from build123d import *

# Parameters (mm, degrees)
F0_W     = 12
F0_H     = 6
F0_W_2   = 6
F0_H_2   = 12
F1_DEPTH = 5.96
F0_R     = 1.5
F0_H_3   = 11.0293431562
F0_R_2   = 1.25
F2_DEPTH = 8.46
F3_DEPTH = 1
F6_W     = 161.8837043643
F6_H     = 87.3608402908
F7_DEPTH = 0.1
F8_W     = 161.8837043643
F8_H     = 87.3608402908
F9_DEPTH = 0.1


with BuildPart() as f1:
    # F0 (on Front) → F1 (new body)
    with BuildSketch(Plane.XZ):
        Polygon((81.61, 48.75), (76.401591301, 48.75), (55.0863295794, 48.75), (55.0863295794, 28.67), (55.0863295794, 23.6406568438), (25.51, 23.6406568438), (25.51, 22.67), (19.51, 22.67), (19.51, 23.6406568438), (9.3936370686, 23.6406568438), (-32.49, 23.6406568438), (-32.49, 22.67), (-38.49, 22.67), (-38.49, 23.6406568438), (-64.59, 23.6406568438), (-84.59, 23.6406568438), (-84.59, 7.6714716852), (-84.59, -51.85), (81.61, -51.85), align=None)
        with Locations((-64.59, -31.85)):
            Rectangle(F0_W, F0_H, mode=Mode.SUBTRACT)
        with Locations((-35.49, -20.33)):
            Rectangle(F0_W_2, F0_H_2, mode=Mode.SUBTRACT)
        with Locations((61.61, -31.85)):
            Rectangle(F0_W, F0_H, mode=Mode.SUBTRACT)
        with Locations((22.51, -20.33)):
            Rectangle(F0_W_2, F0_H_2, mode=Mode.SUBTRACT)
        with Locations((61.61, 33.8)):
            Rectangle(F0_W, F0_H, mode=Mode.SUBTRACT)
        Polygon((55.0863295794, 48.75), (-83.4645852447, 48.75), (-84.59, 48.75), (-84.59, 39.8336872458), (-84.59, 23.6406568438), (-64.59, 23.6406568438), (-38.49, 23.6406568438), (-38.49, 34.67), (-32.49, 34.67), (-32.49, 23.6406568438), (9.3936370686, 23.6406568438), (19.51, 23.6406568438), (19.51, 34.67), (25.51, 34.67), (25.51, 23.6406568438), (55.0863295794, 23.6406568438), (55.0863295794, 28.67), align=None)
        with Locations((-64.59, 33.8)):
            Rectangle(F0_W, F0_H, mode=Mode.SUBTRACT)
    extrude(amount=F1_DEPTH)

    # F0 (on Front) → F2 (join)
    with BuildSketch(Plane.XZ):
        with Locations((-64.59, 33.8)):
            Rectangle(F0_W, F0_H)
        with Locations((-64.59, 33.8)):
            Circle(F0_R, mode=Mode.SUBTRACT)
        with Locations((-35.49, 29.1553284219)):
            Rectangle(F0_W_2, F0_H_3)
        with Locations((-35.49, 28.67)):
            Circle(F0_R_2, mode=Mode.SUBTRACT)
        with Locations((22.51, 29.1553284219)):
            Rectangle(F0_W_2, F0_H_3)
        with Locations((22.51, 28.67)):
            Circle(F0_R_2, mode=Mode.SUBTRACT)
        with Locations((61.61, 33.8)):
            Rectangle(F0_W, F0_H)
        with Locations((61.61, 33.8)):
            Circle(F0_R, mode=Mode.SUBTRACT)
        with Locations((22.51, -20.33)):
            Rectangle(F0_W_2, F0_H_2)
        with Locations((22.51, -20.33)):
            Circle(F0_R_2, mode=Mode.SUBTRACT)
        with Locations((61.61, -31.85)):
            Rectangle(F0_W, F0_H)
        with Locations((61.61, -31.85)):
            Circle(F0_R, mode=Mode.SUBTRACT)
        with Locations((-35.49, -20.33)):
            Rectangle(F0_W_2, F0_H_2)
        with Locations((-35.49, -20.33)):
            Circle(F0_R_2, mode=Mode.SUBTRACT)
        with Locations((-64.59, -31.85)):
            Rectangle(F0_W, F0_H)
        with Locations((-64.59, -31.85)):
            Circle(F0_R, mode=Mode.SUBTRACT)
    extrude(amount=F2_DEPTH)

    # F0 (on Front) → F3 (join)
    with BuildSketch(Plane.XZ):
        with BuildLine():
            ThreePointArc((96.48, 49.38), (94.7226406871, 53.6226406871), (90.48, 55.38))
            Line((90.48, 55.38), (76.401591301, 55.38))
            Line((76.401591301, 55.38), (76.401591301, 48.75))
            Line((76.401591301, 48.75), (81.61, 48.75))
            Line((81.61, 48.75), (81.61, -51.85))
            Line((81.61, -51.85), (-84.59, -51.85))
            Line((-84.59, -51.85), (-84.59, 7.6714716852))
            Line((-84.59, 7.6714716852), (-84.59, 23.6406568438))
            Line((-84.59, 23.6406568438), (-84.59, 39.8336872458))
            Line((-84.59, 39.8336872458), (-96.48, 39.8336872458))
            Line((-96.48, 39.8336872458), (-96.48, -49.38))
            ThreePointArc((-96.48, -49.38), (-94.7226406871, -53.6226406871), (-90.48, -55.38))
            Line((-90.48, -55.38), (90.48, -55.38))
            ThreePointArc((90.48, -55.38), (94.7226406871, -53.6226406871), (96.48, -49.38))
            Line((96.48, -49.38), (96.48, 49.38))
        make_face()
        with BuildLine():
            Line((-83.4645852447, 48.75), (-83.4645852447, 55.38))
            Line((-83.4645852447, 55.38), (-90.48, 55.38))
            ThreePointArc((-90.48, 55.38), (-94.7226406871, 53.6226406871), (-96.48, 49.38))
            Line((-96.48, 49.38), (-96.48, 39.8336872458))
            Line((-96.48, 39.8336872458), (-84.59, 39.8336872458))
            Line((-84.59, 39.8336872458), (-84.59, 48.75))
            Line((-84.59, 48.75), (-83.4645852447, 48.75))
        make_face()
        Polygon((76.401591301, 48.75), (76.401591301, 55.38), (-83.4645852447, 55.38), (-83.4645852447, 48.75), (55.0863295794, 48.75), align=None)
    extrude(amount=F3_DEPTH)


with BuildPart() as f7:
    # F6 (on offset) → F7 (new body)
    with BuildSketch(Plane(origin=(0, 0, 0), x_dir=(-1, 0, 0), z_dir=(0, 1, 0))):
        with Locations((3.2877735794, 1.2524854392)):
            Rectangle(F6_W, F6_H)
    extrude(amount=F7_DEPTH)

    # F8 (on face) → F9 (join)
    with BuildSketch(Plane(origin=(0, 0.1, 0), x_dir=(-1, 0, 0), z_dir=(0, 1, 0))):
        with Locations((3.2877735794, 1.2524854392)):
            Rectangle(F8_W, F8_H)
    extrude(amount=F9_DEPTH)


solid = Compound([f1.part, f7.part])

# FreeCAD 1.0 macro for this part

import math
import FreeCAD as App
import Part
import Sketcher

V = App.Vector

doc = App.newDocument("Part")
body = doc.addObject("PartDesign::Body", "Body")

sketch1 = body.newObject("Sketcher::SketchObject", "Sketch")
sketch1.AttachmentSupport = (doc.getObject("XZ_Plane"), [""])
sketch1.MapMode = "FlatFace"
sketch1.addGeometry(Part.LineSegment(V(82, 49, 0), V(-85, 49, 0)), False)
sketch1.addGeometry(Part.LineSegment(V(-85, 49, 0), V(-85, -52, 0)), False)
sketch1.addGeometry(Part.LineSegment(V(-85, -52, 0), V(82, -52, 0)), False)
sketch1.addGeometry(Part.LineSegment(V(82, -52, 0), V(82, 49, 0)), False)
sketch1.addGeometry(Part.LineSegment(V(-59, -35, 0), V(-71, -35, 0)), False)
sketch1.addGeometry(Part.LineSegment(V(-71, -35, 0), V(-71, -29, 0)), False)
sketch1.addGeometry(Part.LineSegment(V(-71, -29, 0), V(-59, -29, 0)), False)
sketch1.addGeometry(Part.LineSegment(V(-59, -29, 0), V(-59, -35, 0)), False)
sketch1.addGeometry(Part.LineSegment(V(-32, -26, 0), V(-38, -26, 0)), False)
sketch1.addGeometry(Part.LineSegment(V(-38, -26, 0), V(-38, -14, 0)), False)
sketch1.addGeometry(Part.LineSegment(V(-38, -14, 0), V(-32, -14, 0)), False)
sketch1.addGeometry(Part.LineSegment(V(-32, -14, 0), V(-32, -26, 0)), False)
sketch1.addGeometry(Part.LineSegment(V(26, -26, 0), V(20, -26, 0)), False)
sketch1.addGeometry(Part.LineSegment(V(20, -26, 0), V(20, -14, 0)), False)
sketch1.addGeometry(Part.LineSegment(V(20, -14, 0), V(26, -14, 0)), False)
sketch1.addGeometry(Part.LineSegment(V(26, -14, 0), V(26, -26, 0)), False)
sketch1.addGeometry(Part.LineSegment(V(68, -35, 0), V(56, -35, 0)), False)
sketch1.addGeometry(Part.LineSegment(V(56, -35, 0), V(56, -29, 0)), False)
sketch1.addGeometry(Part.LineSegment(V(56, -29, 0), V(68, -29, 0)), False)
sketch1.addGeometry(Part.LineSegment(V(68, -29, 0), V(68, -35, 0)), False)
sketch1.addGeometry(Part.LineSegment(V(-59, 31, 0), V(-71, 31, 0)), False)
sketch1.addGeometry(Part.LineSegment(V(-71, 31, 0), V(-71, 37, 0)), False)
sketch1.addGeometry(Part.LineSegment(V(-71, 37, 0), V(-59, 37, 0)), False)
sketch1.addGeometry(Part.LineSegment(V(-59, 37, 0), V(-59, 31, 0)), False)
sketch1.addGeometry(Part.LineSegment(V(-38, 23, 0), V(-38, 35, 0)), False)
sketch1.addGeometry(Part.LineSegment(V(-38, 35, 0), V(-32, 35, 0)), False)
sketch1.addGeometry(Part.LineSegment(V(-32, 35, 0), V(-32, 23, 0)), False)
sketch1.addGeometry(Part.LineSegment(V(-32, 23, 0), V(-38, 23, 0)), False)
sketch1.addGeometry(Part.LineSegment(V(26, 23, 0), V(20, 23, 0)), False)
sketch1.addGeometry(Part.LineSegment(V(20, 23, 0), V(20, 35, 0)), False)
sketch1.addGeometry(Part.LineSegment(V(20, 35, 0), V(26, 35, 0)), False)
sketch1.addGeometry(Part.LineSegment(V(26, 35, 0), V(26, 23, 0)), False)
sketch1.addGeometry(Part.LineSegment(V(68, 31, 0), V(56, 31, 0)), False)
sketch1.addGeometry(Part.LineSegment(V(56, 31, 0), V(56, 37, 0)), False)
sketch1.addGeometry(Part.LineSegment(V(56, 37, 0), V(68, 37, 0)), False)
sketch1.addGeometry(Part.LineSegment(V(68, 37, 0), V(68, 31, 0)), False)
sketch1.addConstraint(Sketcher.Constraint("Coincident", 0, 2, 1, 1))
sketch1.addConstraint(Sketcher.Constraint("Coincident", 1, 2, 2, 1))
sketch1.addConstraint(Sketcher.Constraint("Coincident", 2, 2, 3, 1))
sketch1.addConstraint(Sketcher.Constraint("Coincident", 3, 2, 0, 1))
sketch1.addConstraint(Sketcher.Constraint("Coincident", 4, 2, 5, 1))
sketch1.addConstraint(Sketcher.Constraint("Coincident", 5, 2, 6, 1))
sketch1.addConstraint(Sketcher.Constraint("Coincident", 6, 2, 7, 1))
sketch1.addConstraint(Sketcher.Constraint("Coincident", 7, 2, 4, 1))
sketch1.addConstraint(Sketcher.Constraint("Coincident", 8, 2, 9, 1))
sketch1.addConstraint(Sketcher.Constraint("Coincident", 9, 2, 10, 1))
sketch1.addConstraint(Sketcher.Constraint("Coincident", 10, 2, 11, 1))
sketch1.addConstraint(Sketcher.Constraint("Coincident", 11, 2, 8, 1))
sketch1.addConstraint(Sketcher.Constraint("Coincident", 12, 2, 13, 1))
sketch1.addConstraint(Sketcher.Constraint("Coincident", 13, 2, 14, 1))
sketch1.addConstraint(Sketcher.Constraint("Coincident", 14, 2, 15, 1))
sketch1.addConstraint(Sketcher.Constraint("Coincident", 15, 2, 12, 1))
sketch1.addConstraint(Sketcher.Constraint("Coincident", 16, 2, 17, 1))
sketch1.addConstraint(Sketcher.Constraint("Coincident", 17, 2, 18, 1))
sketch1.addConstraint(Sketcher.Constraint("Coincident", 18, 2, 19, 1))
sketch1.addConstraint(Sketcher.Constraint("Coincident", 19, 2, 16, 1))
sketch1.addConstraint(Sketcher.Constraint("Coincident", 20, 2, 21, 1))
sketch1.addConstraint(Sketcher.Constraint("Coincident", 21, 2, 22, 1))
sketch1.addConstraint(Sketcher.Constraint("Coincident", 22, 2, 23, 1))
sketch1.addConstraint(Sketcher.Constraint("Coincident", 23, 2, 20, 1))
sketch1.addConstraint(Sketcher.Constraint("Coincident", 24, 2, 25, 1))
sketch1.addConstraint(Sketcher.Constraint("Coincident", 25, 2, 26, 1))
sketch1.addConstraint(Sketcher.Constraint("Coincident", 26, 2, 27, 1))
sketch1.addConstraint(Sketcher.Constraint("Coincident", 27, 2, 24, 1))
sketch1.addConstraint(Sketcher.Constraint("Coincident", 28, 2, 29, 1))
sketch1.addConstraint(Sketcher.Constraint("Coincident", 29, 2, 30, 1))
sketch1.addConstraint(Sketcher.Constraint("Coincident", 30, 2, 31, 1))
sketch1.addConstraint(Sketcher.Constraint("Coincident", 31, 2, 28, 1))
sketch1.addConstraint(Sketcher.Constraint("Coincident", 32, 2, 33, 1))
sketch1.addConstraint(Sketcher.Constraint("Coincident", 33, 2, 34, 1))
sketch1.addConstraint(Sketcher.Constraint("Coincident", 34, 2, 35, 1))
sketch1.addConstraint(Sketcher.Constraint("Coincident", 35, 2, 32, 1))
sketch1.addConstraint(Sketcher.Constraint("Horizontal", 0))
sketch1.addConstraint(Sketcher.Constraint("Vertical", 1))
sketch1.addConstraint(Sketcher.Constraint("Horizontal", 2))
sketch1.addConstraint(Sketcher.Constraint("Vertical", 3))
sketch1.addConstraint(Sketcher.Constraint("Horizontal", 4))
sketch1.addConstraint(Sketcher.Constraint("Vertical", 5))
sketch1.addConstraint(Sketcher.Constraint("Horizontal", 6))
sketch1.addConstraint(Sketcher.Constraint("Vertical", 7))
sketch1.addConstraint(Sketcher.Constraint("Horizontal", 8))
sketch1.addConstraint(Sketcher.Constraint("Vertical", 9))
sketch1.addConstraint(Sketcher.Constraint("Horizontal", 10))
sketch1.addConstraint(Sketcher.Constraint("Vertical", 11))
sketch1.addConstraint(Sketcher.Constraint("Horizontal", 12))
sketch1.addConstraint(Sketcher.Constraint("Vertical", 13))
sketch1.addConstraint(Sketcher.Constraint("Horizontal", 14))
sketch1.addConstraint(Sketcher.Constraint("Vertical", 15))
sketch1.addConstraint(Sketcher.Constraint("Horizontal", 16))
sketch1.addConstraint(Sketcher.Constraint("Vertical", 17))
sketch1.addConstraint(Sketcher.Constraint("Horizontal", 18))
sketch1.addConstraint(Sketcher.Constraint("Vertical", 19))
sketch1.addConstraint(Sketcher.Constraint("Horizontal", 20))
sketch1.addConstraint(Sketcher.Constraint("Vertical", 21))
sketch1.addConstraint(Sketcher.Constraint("Horizontal", 22))
sketch1.addConstraint(Sketcher.Constraint("Vertical", 23))
sketch1.addConstraint(Sketcher.Constraint("Vertical", 24))
sketch1.addConstraint(Sketcher.Constraint("Horizontal", 25))
sketch1.addConstraint(Sketcher.Constraint("Vertical", 26))
sketch1.addConstraint(Sketcher.Constraint("Horizontal", 27))
sketch1.addConstraint(Sketcher.Constraint("Horizontal", 28))
sketch1.addConstraint(Sketcher.Constraint("Vertical", 29))
sketch1.addConstraint(Sketcher.Constraint("Horizontal", 30))
sketch1.addConstraint(Sketcher.Constraint("Vertical", 31))
sketch1.addConstraint(Sketcher.Constraint("Horizontal", 32))
sketch1.addConstraint(Sketcher.Constraint("Vertical", 33))
sketch1.addConstraint(Sketcher.Constraint("Horizontal", 34))
sketch1.addConstraint(Sketcher.Constraint("Vertical", 35))
sketch1.addConstraint(Sketcher.Constraint("Horizontal", 11, 2, 12, 2))
sketch1.addConstraint(Sketcher.Constraint("Horizontal", 10, 2, 13, 2))
sketch1.addConstraint(Sketcher.Constraint("Horizontal", 7, 2, 16, 2))
sketch1.addConstraint(Sketcher.Constraint("Horizontal", 6, 2, 17, 2))
sketch1.addConstraint(Sketcher.Constraint("Horizontal", 27, 2, 28, 2))
sketch1.addConstraint(Sketcher.Constraint("Horizontal", 25, 2, 29, 2))
sketch1.addConstraint(Sketcher.Constraint("Horizontal", 23, 2, 32, 2))
sketch1.addConstraint(Sketcher.Constraint("Horizontal", 22, 2, 33, 2))
sketch1.addConstraint(Sketcher.Constraint("Vertical", 5, 2, 20, 2))
sketch1.addConstraint(Sketcher.Constraint("Vertical", 7, 2, 22, 2))
sketch1.addConstraint(Sketcher.Constraint("Vertical", 9, 2, 24, 2))
sketch1.addConstraint(Sketcher.Constraint("Vertical", 11, 2, 25, 2))
sketch1.addConstraint(Sketcher.Constraint("Vertical", 13, 2, 28, 2))
sketch1.addConstraint(Sketcher.Constraint("Vertical", 15, 2, 30, 2))
sketch1.addConstraint(Sketcher.Constraint("Vertical", 17, 2, 32, 2))
sketch1.addConstraint(Sketcher.Constraint("Vertical", 19, 2, 34, 2))
sketch1.addConstraint(Sketcher.Constraint("Equal", 10, 12))
sketch1.addConstraint(Sketcher.Constraint("Equal", 6, 16))
sketch1.addConstraint(Sketcher.Constraint("Equal", 30, 5))
sketch1.addConstraint(Sketcher.Constraint("Equal", 34, 9))
sketch1.addConstraint(Sketcher.Constraint("Equal", 19, 21))
sketch1.addConstraint(Sketcher.Constraint("Equal", 15, 24))
sketch1.addConstraint(Sketcher.Constraint("DistanceX", 4, 2, 4, 1, 12.0))
sketch1.addConstraint(Sketcher.Constraint("DistanceX", 8, 2, 8, 1, 6.0))
sketch1.addConstraint(Sketcher.Constraint("DistanceX", 0, 2, 0, 1, 166.2))
sketch1.addConstraint(Sketcher.Constraint("DistanceY", 1, 2, 1, 1, 100.6))
sketch1.addConstraint(Sketcher.Constraint("DistanceX", 1, 2, 4, 2, 14.0))
sketch1.addConstraint(Sketcher.Constraint("DistanceY", 1, 2, 4, 2, 17.0))
sketch1.addConstraint(Sketcher.Constraint("DistanceX", 11, 2, 12, 2, 52.0))
sketch1.addConstraint(Sketcher.Constraint("DistanceX", 16, 2, 2, 2, 26.0))
sketch1.addConstraint(Sketcher.Constraint("DistanceY", 10, 2, 26, 2, 37.0))
sketch1.addConstraint(Sketcher.Constraint("DistanceY", -1, 1, 20, 2, 30.8))
sketch1.addConstraint(Sketcher.Constraint("DistanceX", 6, 2, 8, 2, 20.1))
sketch1.addConstraint(Sketcher.Constraint("DistanceX", 0, 2, -1, 1, 84.59))
sketch1.addConstraint(Sketcher.Constraint("DistanceY", -1, 1, 0, 2, 48.75))
sketch1.addConstraint(Sketcher.Constraint("DistanceY", 8, 2, -1, 1, 26.33))
pad1 = body.newObject("PartDesign::Pad", "Pad")
pad1.Profile = sketch1
pad1.Length = 5.96

sketch2 = body.newObject("Sketcher::SketchObject", "Sketch001")
sketch2.AttachmentSupport = (doc.getObject("XZ_Plane"), [""])
sketch2.MapMode = "FlatFace"
sketch2.addGeometry(Part.LineSegment(V(-70.6, 36.8, 0), V(-70.6, 30.8, 0)), False)
sketch2.addGeometry(Part.LineSegment(V(-70.6, 30.8, 0), V(-58.6, 30.8, 0)), False)
sketch2.addGeometry(Part.LineSegment(V(-58.6, 30.8, 0), V(-58.6, 36.8, 0)), False)
sketch2.addGeometry(Part.LineSegment(V(-58.6, 36.8, 0), V(-70.6, 36.8, 0)), False)
sketch2.addGeometry(Part.Circle(V(-64.6, 33.8, 0), V(0, 0, 1), 1.5), False)
sketch2.addGeometry(Part.LineSegment(V(-38.5, 34.7, 0), V(-38.5, 23.6, 0)), False)
sketch2.addGeometry(Part.LineSegment(V(-38.5, 23.6, 0), V(-32.5, 23.6, 0)), False)
sketch2.addGeometry(Part.LineSegment(V(-32.5, 23.6, 0), V(-32.5, 34.7, 0)), False)
sketch2.addGeometry(Part.LineSegment(V(-32.5, 34.7, 0), V(-38.5, 34.7, 0)), False)
sketch2.addGeometry(Part.Circle(V(-35.5, 28.7, 0), V(0, 0, 1), 1.2), False)
sketch2.addGeometry(Part.LineSegment(V(19.5, 34.7, 0), V(19.5, 23.6, 0)), False)
sketch2.addGeometry(Part.LineSegment(V(19.5, 23.6, 0), V(25.5, 23.6, 0)), False)
sketch2.addGeometry(Part.LineSegment(V(25.5, 23.6, 0), V(25.5, 34.7, 0)), False)
sketch2.addGeometry(Part.LineSegment(V(25.5, 34.7, 0), V(19.5, 34.7, 0)), False)
sketch2.addGeometry(Part.Circle(V(22.5, 28.7, 0), V(0, 0, 1), 1.2), False)
sketch2.addGeometry(Part.LineSegment(V(55.6, 36.8, 0), V(55.6, 30.8, 0)), False)
sketch2.addGeometry(Part.LineSegment(V(55.6, 30.8, 0), V(67.6, 30.8, 0)), False)
sketch2.addGeometry(Part.LineSegment(V(67.6, 30.8, 0), V(67.6, 36.8, 0)), False)
sketch2.addGeometry(Part.LineSegment(V(67.6, 36.8, 0), V(55.6, 36.8, 0)), False)
sketch2.addGeometry(Part.Circle(V(61.6, 33.8, 0), V(0, 0, 1), 1.5), False)
sketch2.addGeometry(Part.LineSegment(V(19.5, -14.3, 0), V(19.5, -26.3, 0)), False)
sketch2.addGeometry(Part.LineSegment(V(19.5, -26.3, 0), V(25.5, -26.3, 0)), False)
sketch2.addGeometry(Part.LineSegment(V(25.5, -26.3, 0), V(25.5, -14.3, 0)), False)
sketch2.addGeometry(Part.LineSegment(V(25.5, -14.3, 0), V(19.5, -14.3, 0)), False)
sketch2.addGeometry(Part.Circle(V(22.5, -20.3, 0), V(0, 0, 1), 1.2), False)
sketch2.addGeometry(Part.LineSegment(V(55.6, -28.9, 0), V(55.6, -34.9, 0)), False)
sketch2.addGeometry(Part.LineSegment(V(55.6, -34.9, 0), V(67.6, -34.9, 0)), False)
sketch2.addGeometry(Part.LineSegment(V(67.6, -34.9, 0), V(67.6, -28.9, 0)), False)
sketch2.addGeometry(Part.LineSegment(V(67.6, -28.9, 0), V(55.6, -28.9, 0)), False)
sketch2.addGeometry(Part.Circle(V(61.6, -31.9, 0), V(0, 0, 1), 1.5), False)
sketch2.addGeometry(Part.LineSegment(V(-38.5, -14.3, 0), V(-38.5, -26.3, 0)), False)
sketch2.addGeometry(Part.LineSegment(V(-38.5, -26.3, 0), V(-32.5, -26.3, 0)), False)
sketch2.addGeometry(Part.LineSegment(V(-32.5, -26.3, 0), V(-32.5, -14.3, 0)), False)
sketch2.addGeometry(Part.LineSegment(V(-32.5, -14.3, 0), V(-38.5, -14.3, 0)), False)
sketch2.addGeometry(Part.Circle(V(-35.5, -20.3, 0), V(0, 0, 1), 1.2), False)
sketch2.addGeometry(Part.LineSegment(V(-70.6, -28.9, 0), V(-70.6, -34.9, 0)), False)
sketch2.addGeometry(Part.LineSegment(V(-70.6, -34.9, 0), V(-58.6, -34.9, 0)), False)
sketch2.addGeometry(Part.LineSegment(V(-58.6, -34.9, 0), V(-58.6, -28.9, 0)), False)
sketch2.addGeometry(Part.LineSegment(V(-58.6, -28.9, 0), V(-70.6, -28.9, 0)), False)
sketch2.addGeometry(Part.Circle(V(-64.6, -31.9, 0), V(0, 0, 1), 1.5), False)
sketch2.addConstraint(Sketcher.Constraint("Coincident", 0, 2, 1, 1))
sketch2.addConstraint(Sketcher.Constraint("Coincident", 1, 2, 2, 1))
sketch2.addConstraint(Sketcher.Constraint("Coincident", 2, 2, 3, 1))
sketch2.addConstraint(Sketcher.Constraint("Coincident", 3, 2, 0, 1))
sketch2.addConstraint(Sketcher.Constraint("Coincident", 5, 2, 6, 1))
sketch2.addConstraint(Sketcher.Constraint("Coincident", 6, 2, 7, 1))
sketch2.addConstraint(Sketcher.Constraint("Coincident", 7, 2, 8, 1))
sketch2.addConstraint(Sketcher.Constraint("Coincident", 8, 2, 5, 1))
sketch2.addConstraint(Sketcher.Constraint("Coincident", 10, 2, 11, 1))
sketch2.addConstraint(Sketcher.Constraint("Coincident", 11, 2, 12, 1))
sketch2.addConstraint(Sketcher.Constraint("Coincident", 12, 2, 13, 1))
sketch2.addConstraint(Sketcher.Constraint("Coincident", 13, 2, 10, 1))
sketch2.addConstraint(Sketcher.Constraint("Coincident", 15, 2, 16, 1))
sketch2.addConstraint(Sketcher.Constraint("Coincident", 16, 2, 17, 1))
sketch2.addConstraint(Sketcher.Constraint("Coincident", 17, 2, 18, 1))
sketch2.addConstraint(Sketcher.Constraint("Coincident", 18, 2, 15, 1))
sketch2.addConstraint(Sketcher.Constraint("Coincident", 20, 2, 21, 1))
sketch2.addConstraint(Sketcher.Constraint("Coincident", 21, 2, 22, 1))
sketch2.addConstraint(Sketcher.Constraint("Coincident", 22, 2, 23, 1))
sketch2.addConstraint(Sketcher.Constraint("Coincident", 23, 2, 20, 1))
sketch2.addConstraint(Sketcher.Constraint("Coincident", 25, 2, 26, 1))
sketch2.addConstraint(Sketcher.Constraint("Coincident", 26, 2, 27, 1))
sketch2.addConstraint(Sketcher.Constraint("Coincident", 27, 2, 28, 1))
sketch2.addConstraint(Sketcher.Constraint("Coincident", 28, 2, 25, 1))
sketch2.addConstraint(Sketcher.Constraint("Coincident", 30, 2, 31, 1))
sketch2.addConstraint(Sketcher.Constraint("Coincident", 31, 2, 32, 1))
sketch2.addConstraint(Sketcher.Constraint("Coincident", 32, 2, 33, 1))
sketch2.addConstraint(Sketcher.Constraint("Coincident", 33, 2, 30, 1))
sketch2.addConstraint(Sketcher.Constraint("Coincident", 35, 2, 36, 1))
sketch2.addConstraint(Sketcher.Constraint("Coincident", 36, 2, 37, 1))
sketch2.addConstraint(Sketcher.Constraint("Coincident", 37, 2, 38, 1))
sketch2.addConstraint(Sketcher.Constraint("Coincident", 38, 2, 35, 1))
sketch2.addConstraint(Sketcher.Constraint("Vertical", 0))
sketch2.addConstraint(Sketcher.Constraint("Horizontal", 1))
sketch2.addConstraint(Sketcher.Constraint("Vertical", 2))
sketch2.addConstraint(Sketcher.Constraint("Horizontal", 3))
sketch2.addConstraint(Sketcher.Constraint("Vertical", 5))
sketch2.addConstraint(Sketcher.Constraint("Horizontal", 6))
sketch2.addConstraint(Sketcher.Constraint("Vertical", 7))
sketch2.addConstraint(Sketcher.Constraint("Horizontal", 8))
sketch2.addConstraint(Sketcher.Constraint("Vertical", 10))
sketch2.addConstraint(Sketcher.Constraint("Horizontal", 11))
sketch2.addConstraint(Sketcher.Constraint("Vertical", 12))
sketch2.addConstraint(Sketcher.Constraint("Horizontal", 13))
sketch2.addConstraint(Sketcher.Constraint("Vertical", 15))
sketch2.addConstraint(Sketcher.Constraint("Horizontal", 16))
sketch2.addConstraint(Sketcher.Constraint("Vertical", 17))
sketch2.addConstraint(Sketcher.Constraint("Horizontal", 18))
sketch2.addConstraint(Sketcher.Constraint("Vertical", 20))
sketch2.addConstraint(Sketcher.Constraint("Horizontal", 21))
sketch2.addConstraint(Sketcher.Constraint("Vertical", 22))
sketch2.addConstraint(Sketcher.Constraint("Horizontal", 23))
sketch2.addConstraint(Sketcher.Constraint("Vertical", 25))
sketch2.addConstraint(Sketcher.Constraint("Horizontal", 26))
sketch2.addConstraint(Sketcher.Constraint("Vertical", 27))
sketch2.addConstraint(Sketcher.Constraint("Horizontal", 28))
sketch2.addConstraint(Sketcher.Constraint("Vertical", 30))
sketch2.addConstraint(Sketcher.Constraint("Horizontal", 31))
sketch2.addConstraint(Sketcher.Constraint("Vertical", 32))
sketch2.addConstraint(Sketcher.Constraint("Horizontal", 33))
sketch2.addConstraint(Sketcher.Constraint("Vertical", 35))
sketch2.addConstraint(Sketcher.Constraint("Horizontal", 36))
sketch2.addConstraint(Sketcher.Constraint("Vertical", 37))
sketch2.addConstraint(Sketcher.Constraint("Horizontal", 38))
sketch2.addConstraint(Sketcher.Constraint("Equal", 9, 14))
sketch2.addConstraint(Sketcher.Constraint("Equal", 4, 19))
sketch2.addConstraint(Sketcher.Constraint("Equal", 14, 24))
sketch2.addConstraint(Sketcher.Constraint("Equal", 19, 29))
sketch2.addConstraint(Sketcher.Constraint("Equal", 24, 34))
sketch2.addConstraint(Sketcher.Constraint("Equal", 29, 39))
sketch2.addConstraint(Sketcher.Constraint("Horizontal", 9, 3, 14, 3))
sketch2.addConstraint(Sketcher.Constraint("Horizontal", 4, 3, 19, 3))
sketch2.addConstraint(Sketcher.Constraint("Horizontal", 24, 3, 34, 3))
sketch2.addConstraint(Sketcher.Constraint("Horizontal", 29, 3, 39, 3))
sketch2.addConstraint(Sketcher.Constraint("Horizontal", 6, 2, 10, 2))
sketch2.addConstraint(Sketcher.Constraint("Horizontal", 8, 2, 12, 2))
sketch2.addConstraint(Sketcher.Constraint("Horizontal", 1, 2, 15, 2))
sketch2.addConstraint(Sketcher.Constraint("Horizontal", 3, 2, 17, 2))
sketch2.addConstraint(Sketcher.Constraint("Horizontal", 21, 2, 30, 2))
sketch2.addConstraint(Sketcher.Constraint("Horizontal", 23, 2, 32, 2))
sketch2.addConstraint(Sketcher.Constraint("Horizontal", 26, 2, 35, 2))
sketch2.addConstraint(Sketcher.Constraint("Horizontal", 28, 2, 37, 2))
sketch2.addConstraint(Sketcher.Constraint("Vertical", 14, 3, 24, 3))
sketch2.addConstraint(Sketcher.Constraint("Vertical", 19, 3, 29, 3))
sketch2.addConstraint(Sketcher.Constraint("Vertical", 9, 3, 34, 3))
sketch2.addConstraint(Sketcher.Constraint("Vertical", 4, 3, 39, 3))
sketch2.addConstraint(Sketcher.Constraint("Vertical", 13, 2, 20, 2))
sketch2.addConstraint(Sketcher.Constraint("Vertical", 12, 2, 21, 2))
sketch2.addConstraint(Sketcher.Constraint("Vertical", 18, 2, 25, 2))
sketch2.addConstraint(Sketcher.Constraint("Vertical", 17, 2, 26, 2))
sketch2.addConstraint(Sketcher.Constraint("Vertical", 8, 2, 30, 2))
sketch2.addConstraint(Sketcher.Constraint("Vertical", 7, 2, 31, 2))
sketch2.addConstraint(Sketcher.Constraint("Vertical", 3, 2, 35, 2))
sketch2.addConstraint(Sketcher.Constraint("Vertical", 2, 2, 36, 2))
sketch2.addConstraint(Sketcher.Constraint("Equal", 8, 11))
sketch2.addConstraint(Sketcher.Constraint("Equal", 3, 16))
sketch2.addConstraint(Sketcher.Constraint("Equal", 33, 0))
sketch2.addConstraint(Sketcher.Constraint("Equal", 38, 20))
sketch2.addConstraint(Sketcher.Constraint("Equal", 17, 25))
sketch2.addConstraint(Sketcher.Constraint("Diameter", 4, 3.0))
sketch2.addConstraint(Sketcher.Constraint("Diameter", 9, 2.5))
sketch2.addConstraint(Sketcher.Constraint("DistanceX", 1, 1, 1, 2, 12.0))
sketch2.addConstraint(Sketcher.Constraint("DistanceX", 6, 1, 6, 2, 6.0))
sketch2.addConstraint(Sketcher.Constraint("DistanceX", 9, 3, 14, 3, 58.0))
sketch2.addConstraint(Sketcher.Constraint("DistanceY", 24, 3, 14, 3, 49.0))
sketch2.addConstraint(Sketcher.Constraint("DistanceX", 0, 2, 4, 3, 6.0))
sketch2.addConstraint(Sketcher.Constraint("DistanceY", 0, 2, 4, 3, 3.0))
sketch2.addConstraint(Sketcher.Constraint("DistanceX", 5, 2, 9, 3, 3.0))
sketch2.addConstraint(Sketcher.Constraint("DistanceY", 9, 3, 7, 2, 6.0))
sketch2.addConstraint(Sketcher.Constraint("DistanceX", 10, 2, 14, 3, 3.0))
sketch2.addConstraint(Sketcher.Constraint("DistanceX", 15, 2, 19, 3, 6.0))
sketch2.addConstraint(Sketcher.Constraint("DistanceY", 20, 2, 24, 3, 6.0))
sketch2.addConstraint(Sketcher.Constraint("DistanceY", 25, 2, 29, 3, 3.0))
sketch2.addConstraint(Sketcher.Constraint("DistanceY", -1, 1, 4, 3, 33.8))
sketch2.addConstraint(Sketcher.Constraint("DistanceX", 4, 3, 9, 3, 29.1))
sketch2.addConstraint(Sketcher.Constraint("DistanceX", 14, 3, 19, 3, 39.1))
sketch2.addConstraint(Sketcher.Constraint("DistanceX", 4, 3, -1, 1, 64.59))
sketch2.addConstraint(Sketcher.Constraint("DistanceY", -1, 1, 9, 3, 28.67))
sketch2.addConstraint(Sketcher.Constraint("DistanceY", 29, 3, -1, 1, 31.85))
sketch2.addConstraint(Sketcher.Constraint("DistanceY", 5, 2, 5, 1, 11.029343))
pad2 = body.newObject("PartDesign::Pad", "Pad001")
pad2.Profile = sketch2
pad2.Length = 8.46

sketch3 = body.newObject("Sketcher::SketchObject", "Sketch002")
sketch3.AttachmentSupport = (doc.getObject("XZ_Plane"), [""])
sketch3.MapMode = "FlatFace"
sketch3.addGeometry(Part.ArcOfCircle(Part.Circle(V(90, 49, 0), V(0, 0, 1), 6), math.radians(0), math.radians(90)), False)
sketch3.addGeometry(Part.LineSegment(V(90, 55, 0), V(-90, 55, 0)), False)
sketch3.addGeometry(Part.ArcOfCircle(Part.Circle(V(-90, 49, 0), V(0, 0, 1), 6), math.radians(90), math.radians(180)), False)
sketch3.addGeometry(Part.LineSegment(V(-96, 49, 0), V(-96, -49, 0)), False)
sketch3.addGeometry(Part.ArcOfCircle(Part.Circle(V(-90, -49, 0), V(0, 0, 1), 6), math.radians(180), math.radians(270)), False)
sketch3.addGeometry(Part.LineSegment(V(-90, -55, 0), V(90, -55, 0)), False)
sketch3.addGeometry(Part.ArcOfCircle(Part.Circle(V(90, -49, 0), V(0, 0, 1), 6), math.radians(-90), math.radians(0)), False)
sketch3.addGeometry(Part.LineSegment(V(96, -49, 0), V(96, 49, 0)), False)
sketch3.addGeometry(Part.LineSegment(V(82, 49, 0), V(82, -52, 0)), False)
sketch3.addGeometry(Part.LineSegment(V(82, -52, 0), V(-85, -52, 0)), False)
sketch3.addGeometry(Part.LineSegment(V(-85, -52, 0), V(-85, 49, 0)), False)
sketch3.addGeometry(Part.LineSegment(V(-85, 49, 0), V(82, 49, 0)), False)
sketch3.addConstraint(Sketcher.Constraint("Tangent", 0, 2, 1, 1))
sketch3.addConstraint(Sketcher.Constraint("Tangent", 1, 2, 2, 1))
sketch3.addConstraint(Sketcher.Constraint("Tangent", 2, 2, 3, 1))
sketch3.addConstraint(Sketcher.Constraint("Tangent", 3, 2, 4, 1))
sketch3.addConstraint(Sketcher.Constraint("Tangent", 4, 2, 5, 1))
sketch3.addConstraint(Sketcher.Constraint("Tangent", 5, 2, 6, 1))
sketch3.addConstraint(Sketcher.Constraint("Tangent", 6, 2, 7, 1))
sketch3.addConstraint(Sketcher.Constraint("Tangent", 7, 2, 0, 1))
sketch3.addConstraint(Sketcher.Constraint("Coincident", 8, 2, 9, 1))
sketch3.addConstraint(Sketcher.Constraint("Coincident", 9, 2, 10, 1))
sketch3.addConstraint(Sketcher.Constraint("Coincident", 10, 2, 11, 1))
sketch3.addConstraint(Sketcher.Constraint("Coincident", 11, 2, 8, 1))
sketch3.addConstraint(Sketcher.Constraint("Horizontal", 1))
sketch3.addConstraint(Sketcher.Constraint("Vertical", 3))
sketch3.addConstraint(Sketcher.Constraint("Horizontal", 5))
sketch3.addConstraint(Sketcher.Constraint("Vertical", 7))
sketch3.addConstraint(Sketcher.Constraint("Vertical", 8))
sketch3.addConstraint(Sketcher.Constraint("Horizontal", 9))
sketch3.addConstraint(Sketcher.Constraint("Vertical", 10))
sketch3.addConstraint(Sketcher.Constraint("Horizontal", 11))
sketch3.addConstraint(Sketcher.Constraint("Equal", 0, 2))
sketch3.addConstraint(Sketcher.Constraint("Equal", 2, 4))
sketch3.addConstraint(Sketcher.Constraint("Equal", 4, 6))
sketch3.addConstraint(Sketcher.Constraint("Symmetric", 0, 3, 4, 3, -1, 1))
sketch3.addConstraint(Sketcher.Constraint("Radius", 0, 6.0))
sketch3.addConstraint(Sketcher.Constraint("DistanceX", 9, 2, 9, 1, 166.2))
sketch3.addConstraint(Sketcher.Constraint("DistanceY", 8, 2, 8, 1, 100.6))
sketch3.addConstraint(Sketcher.Constraint("DistanceX", 1, 2, 1, 1, 180.96))
sketch3.addConstraint(Sketcher.Constraint("DistanceY", 3, 2, 3, 1, 98.76))
sketch3.addConstraint(Sketcher.Constraint("DistanceX", -1, 1, 8, 2, 81.61))
sketch3.addConstraint(Sketcher.Constraint("DistanceY", 8, 2, -1, 1, 51.85))
pad3 = body.newObject("PartDesign::Pad", "Pad002")
pad3.Profile = sketch3
pad3.Length = 1
body2 = doc.addObject("PartDesign::Body", "Body001")

sketch4 = body2.newObject("Sketcher::SketchObject", "Sketch003")
sketch4.AttachmentSupport = (doc.getObject("XZ_Plane001"), [""])
sketch4.MapMode = "FlatFace"
sketch4.addGeometry(Part.LineSegment(V(78, 45, 0), V(78, -42, 0)), False)
sketch4.addGeometry(Part.LineSegment(V(78, -42, 0), V(-84, -42, 0)), False)
sketch4.addGeometry(Part.LineSegment(V(-84, -42, 0), V(-84, 45, 0)), False)
sketch4.addGeometry(Part.LineSegment(V(-84, 45, 0), V(78, 45, 0)), False)
sketch4.addConstraint(Sketcher.Constraint("Coincident", 0, 2, 1, 1))
sketch4.addConstraint(Sketcher.Constraint("Coincident", 1, 2, 2, 1))
sketch4.addConstraint(Sketcher.Constraint("Coincident", 2, 2, 3, 1))
sketch4.addConstraint(Sketcher.Constraint("Coincident", 3, 2, 0, 1))
sketch4.addConstraint(Sketcher.Constraint("Vertical", 0))
sketch4.addConstraint(Sketcher.Constraint("Horizontal", 1))
sketch4.addConstraint(Sketcher.Constraint("Vertical", 2))
sketch4.addConstraint(Sketcher.Constraint("Horizontal", 3))
sketch4.addConstraint(Sketcher.Constraint("DistanceY", 0, 2, 0, 1, 87.36084))
sketch4.addConstraint(Sketcher.Constraint("DistanceX", 1, 2, 1, 1, 161.883704))
sketch4.addConstraint(Sketcher.Constraint("DistanceX", -1, 1, 0, 2, 77.654079))
sketch4.addConstraint(Sketcher.Constraint("DistanceY", 0, 2, -1, 1, 42.427935))
pad4 = body2.newObject("PartDesign::Pad", "Pad003")
pad4.Profile = sketch4
pad4.Length = 0.1
pad4.Reversed = True

sketch5 = body2.newObject("Sketcher::SketchObject", "Sketch004")
sketch5.AttachmentSupport = (doc.getObject("XZ_Plane001"), [""])
sketch5.MapMode = "FlatFace"
sketch5.AttachmentOffset = App.Placement(V(0, 0, -0.1), App.Rotation())
sketch5.addGeometry(Part.LineSegment(V(78, 45, 0), V(78, -42, 0)), False)
sketch5.addGeometry(Part.LineSegment(V(78, -42, 0), V(-84, -42, 0)), False)
sketch5.addGeometry(Part.LineSegment(V(-84, -42, 0), V(-84, 45, 0)), False)
sketch5.addGeometry(Part.LineSegment(V(-84, 45, 0), V(78, 45, 0)), False)
sketch5.addConstraint(Sketcher.Constraint("Coincident", 0, 2, 1, 1))
sketch5.addConstraint(Sketcher.Constraint("Coincident", 1, 2, 2, 1))
sketch5.addConstraint(Sketcher.Constraint("Coincident", 2, 2, 3, 1))
sketch5.addConstraint(Sketcher.Constraint("Coincident", 3, 2, 0, 1))
sketch5.addConstraint(Sketcher.Constraint("Vertical", 0))
sketch5.addConstraint(Sketcher.Constraint("Horizontal", 1))
sketch5.addConstraint(Sketcher.Constraint("Vertical", 2))
sketch5.addConstraint(Sketcher.Constraint("Horizontal", 3))
sketch5.addConstraint(Sketcher.Constraint("DistanceY", 0, 2, 0, 1, 87.36084))
sketch5.addConstraint(Sketcher.Constraint("DistanceX", 1, 2, 1, 1, 161.883704))
sketch5.addConstraint(Sketcher.Constraint("DistanceX", -1, 1, 0, 2, 77.654079))
sketch5.addConstraint(Sketcher.Constraint("DistanceY", 0, 2, -1, 1, 42.427935))
pad5 = body2.newObject("PartDesign::Pad", "Pad004")
pad5.Profile = sketch5
pad5.Length = 0.1
pad5.Reversed = True

doc.recompute()
